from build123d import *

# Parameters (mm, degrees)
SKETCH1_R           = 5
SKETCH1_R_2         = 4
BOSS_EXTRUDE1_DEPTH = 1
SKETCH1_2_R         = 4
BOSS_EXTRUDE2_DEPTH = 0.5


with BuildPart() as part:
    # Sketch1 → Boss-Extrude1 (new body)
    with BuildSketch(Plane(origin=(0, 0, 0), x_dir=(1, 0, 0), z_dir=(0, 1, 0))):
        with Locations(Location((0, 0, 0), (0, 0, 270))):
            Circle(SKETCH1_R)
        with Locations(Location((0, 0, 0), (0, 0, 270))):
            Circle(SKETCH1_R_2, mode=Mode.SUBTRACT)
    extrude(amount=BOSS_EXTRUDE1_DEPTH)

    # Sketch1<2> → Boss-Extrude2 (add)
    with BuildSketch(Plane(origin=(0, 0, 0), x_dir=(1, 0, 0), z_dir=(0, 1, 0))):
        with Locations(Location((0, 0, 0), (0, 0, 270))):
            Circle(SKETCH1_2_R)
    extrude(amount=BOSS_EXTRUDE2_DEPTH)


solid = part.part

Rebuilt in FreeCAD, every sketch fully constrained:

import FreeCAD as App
import Part
import Sketcher
Q = App.Units.Quantity

doc = App.newDocument("Part")
body = doc.addObject("PartDesign::Body", "Body")

sketch1 = body.newObject("Sketcher::SketchObject", "Sketch")
sketch1.AttachmentSupport = (doc.getObject("XZ_Plane"), [""])
sketch1.MapMode = "FlatFace"
sketch1.addGeometry([
    Part.Circle(App.Vector(0, 0, 0), App.Vector(0, 0, 1), 5),
    Part.Circle(App.Vector(0, 0, 0), App.Vector(0, 0, 1), 4),
], False)
sketch1.addConstraint([
    Sketcher.Constraint("Coincident", 0, 3, -1, 1),
    Sketcher.Constraint("Coincident", 1, 3, -1, 1),
    Sketcher.Constraint("Diameter", 0, Q("10 mm")),
    Sketcher.Constraint("Diameter", 1, Q("8 mm")),
])
pad1 = body.newObject("PartDesign::Pad", "Pad")
pad1.Profile = sketch1
pad1.Length = 1
pad1.Reversed = True

sketch2 = body.newObject("Sketcher::SketchObject", "Sketch001")
sketch2.AttachmentSupport = (doc.getObject("XZ_Plane"), [""])
sketch2.MapMode = "FlatFace"
sketch2.addGeometry(Part.Circle(App.Vector(0, 0, 0), App.Vector(0, 0, 1), 4), False)
sketch2.addConstraint([
    Sketcher.Constraint("Coincident", 0, 3, -1, 1),
    Sketcher.Constraint("Diameter", 0, Q("8 mm")),
])
pad2 = body.newObject("PartDesign::Pad", "Pad001")
pad2.Profile = sketch2
pad2.Length = 0.5
pad2.Reversed = True

doc.recompute()
